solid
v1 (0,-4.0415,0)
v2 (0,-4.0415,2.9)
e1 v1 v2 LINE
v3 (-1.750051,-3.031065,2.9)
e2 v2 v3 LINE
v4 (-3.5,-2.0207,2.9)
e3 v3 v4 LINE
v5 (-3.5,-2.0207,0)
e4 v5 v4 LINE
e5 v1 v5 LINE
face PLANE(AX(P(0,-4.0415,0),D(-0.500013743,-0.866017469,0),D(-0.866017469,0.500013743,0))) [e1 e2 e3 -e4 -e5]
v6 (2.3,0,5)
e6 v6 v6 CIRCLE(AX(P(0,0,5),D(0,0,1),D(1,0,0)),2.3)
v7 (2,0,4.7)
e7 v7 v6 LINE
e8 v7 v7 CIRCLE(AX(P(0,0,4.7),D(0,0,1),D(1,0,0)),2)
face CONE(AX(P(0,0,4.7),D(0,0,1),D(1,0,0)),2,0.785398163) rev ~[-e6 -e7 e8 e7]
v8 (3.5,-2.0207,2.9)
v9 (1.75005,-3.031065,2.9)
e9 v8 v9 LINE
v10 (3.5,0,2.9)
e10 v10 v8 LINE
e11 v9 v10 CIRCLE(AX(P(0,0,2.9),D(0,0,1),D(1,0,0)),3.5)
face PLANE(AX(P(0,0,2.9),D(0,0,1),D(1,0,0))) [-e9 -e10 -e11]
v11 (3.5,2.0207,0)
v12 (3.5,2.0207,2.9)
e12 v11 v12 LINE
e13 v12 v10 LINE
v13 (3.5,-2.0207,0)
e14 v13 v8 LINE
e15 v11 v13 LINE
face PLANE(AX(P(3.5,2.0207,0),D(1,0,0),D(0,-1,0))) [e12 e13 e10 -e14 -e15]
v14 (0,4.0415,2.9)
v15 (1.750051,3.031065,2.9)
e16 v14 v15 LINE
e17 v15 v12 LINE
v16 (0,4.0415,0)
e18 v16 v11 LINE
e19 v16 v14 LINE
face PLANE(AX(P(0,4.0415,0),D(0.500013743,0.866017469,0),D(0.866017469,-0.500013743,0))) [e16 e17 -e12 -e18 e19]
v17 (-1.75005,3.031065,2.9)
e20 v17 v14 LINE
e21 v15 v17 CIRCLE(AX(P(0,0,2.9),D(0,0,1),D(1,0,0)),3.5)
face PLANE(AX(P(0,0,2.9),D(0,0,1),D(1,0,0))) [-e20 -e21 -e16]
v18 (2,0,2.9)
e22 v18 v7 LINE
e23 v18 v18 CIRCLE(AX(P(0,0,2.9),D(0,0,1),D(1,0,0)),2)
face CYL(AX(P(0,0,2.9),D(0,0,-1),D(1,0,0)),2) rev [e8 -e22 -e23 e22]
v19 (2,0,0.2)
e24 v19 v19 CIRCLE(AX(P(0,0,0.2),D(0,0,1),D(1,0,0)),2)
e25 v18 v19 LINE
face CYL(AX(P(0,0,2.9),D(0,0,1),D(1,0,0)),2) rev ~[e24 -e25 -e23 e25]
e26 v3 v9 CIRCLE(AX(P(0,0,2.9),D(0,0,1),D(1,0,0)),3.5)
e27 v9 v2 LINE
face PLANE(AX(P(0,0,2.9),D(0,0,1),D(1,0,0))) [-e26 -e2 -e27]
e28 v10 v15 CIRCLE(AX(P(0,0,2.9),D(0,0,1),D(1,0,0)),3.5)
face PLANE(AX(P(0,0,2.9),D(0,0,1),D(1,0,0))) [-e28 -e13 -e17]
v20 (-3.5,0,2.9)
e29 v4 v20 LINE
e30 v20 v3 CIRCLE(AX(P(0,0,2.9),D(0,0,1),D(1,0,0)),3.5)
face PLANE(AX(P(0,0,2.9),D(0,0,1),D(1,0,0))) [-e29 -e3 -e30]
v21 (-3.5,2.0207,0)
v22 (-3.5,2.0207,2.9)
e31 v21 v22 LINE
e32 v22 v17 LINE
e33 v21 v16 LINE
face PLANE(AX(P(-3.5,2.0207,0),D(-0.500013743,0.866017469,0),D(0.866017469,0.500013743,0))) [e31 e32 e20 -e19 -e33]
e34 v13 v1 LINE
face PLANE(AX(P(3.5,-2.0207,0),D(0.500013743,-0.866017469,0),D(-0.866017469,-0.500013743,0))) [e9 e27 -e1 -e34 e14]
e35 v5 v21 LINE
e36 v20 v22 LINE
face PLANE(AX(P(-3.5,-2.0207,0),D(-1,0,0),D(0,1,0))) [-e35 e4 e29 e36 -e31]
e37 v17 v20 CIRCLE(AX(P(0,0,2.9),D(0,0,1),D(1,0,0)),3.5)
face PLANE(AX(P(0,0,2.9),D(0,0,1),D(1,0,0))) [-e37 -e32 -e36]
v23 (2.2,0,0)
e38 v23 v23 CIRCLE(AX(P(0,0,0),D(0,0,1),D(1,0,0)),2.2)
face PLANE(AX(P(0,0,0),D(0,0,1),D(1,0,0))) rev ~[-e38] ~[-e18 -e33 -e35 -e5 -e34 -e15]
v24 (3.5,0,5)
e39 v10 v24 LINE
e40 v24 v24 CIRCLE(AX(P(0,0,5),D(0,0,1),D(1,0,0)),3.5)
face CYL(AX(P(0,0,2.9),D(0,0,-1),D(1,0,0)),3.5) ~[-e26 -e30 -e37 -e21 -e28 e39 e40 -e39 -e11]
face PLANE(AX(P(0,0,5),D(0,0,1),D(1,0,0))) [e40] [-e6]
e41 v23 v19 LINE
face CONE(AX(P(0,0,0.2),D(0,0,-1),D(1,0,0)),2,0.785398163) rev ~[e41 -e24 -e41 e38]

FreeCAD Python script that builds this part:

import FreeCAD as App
import Part
import Sketcher
Q = App.Units.Quantity


def edges_at(feature, points):
    """Names of the edges that pass closest to the given points."""
    edges = feature.Shape.Edges
    near = lambda p: min(range(len(edges)), key=lambda i: edges[i].distToShape(Part.Vertex(*p))[0])
    return sorted({f"Edge{near(p) + 1}" for p in points})


def add_polygon(sketch, points):
    """Adds a closed chain of lines whose ends are joined by coincident constraints."""
    first, n = sketch.GeometryCount, len(points)
    for a, b in zip(points, points[1:] + points[:1]):
        sketch.addGeometry(Part.LineSegment(App.Vector(*a, 0), App.Vector(*b, 0)), False)
    for i in range(n):
        sketch.addConstraint(Sketcher.Constraint("Coincident", first + i, 2, first + (i + 1) % n, 1))

doc = App.newDocument("Part")
params = doc.addObject("Spreadsheet::Sheet", "Params")
for row, (alias, value) in enumerate([
    ("pad1_length", "2.9 mm"),
    ("sketch2_diameter", "4 mm"),
    ("pocket1_length", "5 mm"),
    ("sketch3_diameter", "7 mm"),
    ("sketch3_diameter2", "4 mm"),
    ("pad2_length", "2.1 mm"),
    ("chamfer_size", "0.2 mm"),
    ("chamfer2_size", "0.3 mm"),
], start=1):
    params.set(f"A{row}", alias)
    params.set(f"B{row}", "=" + value)
    params.setAlias(f"B{row}", alias)

body = doc.addObject("PartDesign::Body", "Body")

# Sketch on XY plane
sketch1 = body.newObject("Sketcher::SketchObject", "Sketch")
sketch1.AttachmentSupport = (doc.getObject("XY_Plane"), [""])
sketch1.MapMode = "FlatFace"
add_polygon(sketch1, [(3.5, 2), (0, 4), (-3.5, 2), (-3.5, -2), (0, -4), (3.5, -2)])  # lines 0-5
sketch1.addConstraint(Sketcher.Constraint("Vertical", 2))
sketch1.addConstraint(Sketcher.Constraint("Vertical", 5))
sketch1.addConstraint(Sketcher.Constraint("Symmetric", 0, 2, 3, 2, -1, 1))
sketch1.addConstraint(Sketcher.Constraint("Symmetric", 1, 2, 4, 2, -1, 1))
sketch1.addConstraint(Sketcher.Constraint("PointOnObject", 0, 2, -2))
sketch1.addConstraint(Sketcher.Constraint("Parallel", 0, 3))
sketch1.addConstraint(Sketcher.Constraint("Horizontal", 2, 2, 4, 2))
sketch1.addConstraint(Sketcher.Constraint("DistanceX", 2, 2, 4, 2, Q("7 mm")))
sketch1.addConstraint(Sketcher.Constraint("Angle", 0, Q("149.999 deg")))
sketch1.addConstraint(Sketcher.Constraint("DistanceY", 2, 2, 2, 1, Q("4.0414 mm")))
pad1 = body.newObject("PartDesign::Pad", "Pad")
pad1.Profile = sketch1
pad1.setExpression("Length", "Params.pad1_length")

# Sketch on XY plane
sketch2 = body.newObject("Sketcher::SketchObject", "Sketch001")
sketch2.AttachmentSupport = (doc.getObject("XY_Plane"), [""])
sketch2.MapMode = "FlatFace"
sketch2.AttachmentOffset = App.Placement(App.Vector(0, 0, 2.9), App.Rotation())
sketch2.addGeometry(Part.Circle(App.Vector(0, 0, 0), App.Vector(0, 0, 1), 2), False)
sketch2.addConstraint(Sketcher.Constraint("Coincident", 0, 3, -1, 1))
sketch2.addConstraint(Sketcher.Constraint("Diameter", 0, Q("4 mm")))
sketch2.setExpression("Constraints[1]", "Params.sketch2_diameter")
pocket1 = body.newObject("PartDesign::Pocket", "Pocket")
pocket1.Profile = sketch2
pocket1.setExpression("Length", "Params.pocket1_length")

# Sketch on XY plane
sketch3 = body.newObject("Sketcher::SketchObject", "Sketch002")
sketch3.AttachmentSupport = (doc.getObject("XY_Plane"), [""])
sketch3.MapMode = "FlatFace"
sketch3.AttachmentOffset = App.Placement(App.Vector(0, 0, 2.9), App.Rotation())
sketch3.addGeometry(Part.Circle(App.Vector(0, 0, 0), App.Vector(0, 0, 1), 3.5), False)
sketch3.addGeometry(Part.Circle(App.Vector(0, 0, 0), App.Vector(0, 0, 1), 2), False)
sketch3.addConstraint(Sketcher.Constraint("Coincident", 0, 3, -1, 1))
sketch3.addConstraint(Sketcher.Constraint("Coincident", 1, 3, -1, 1))
sketch3.addConstraint(Sketcher.Constraint("Diameter", 0, Q("7 mm")))
sketch3.addConstraint(Sketcher.Constraint("Diameter", 1, Q("4 mm")))
sketch3.setExpression("Constraints[2]", "Params.sketch3_diameter")
sketch3.setExpression("Constraints[3]", "Params.sketch3_diameter2")
pad2 = body.newObject("PartDesign::Pad", "Pad001")
pad2.Profile = sketch3
pad2.setExpression("Length", "Params.pad2_length")
doc.recompute()

chamfer = body.newObject("PartDesign::Chamfer", "Chamfer")
chamfer.Base = (pad2, edges_at(pad2, [(-2, 0, 0)]))
chamfer.setExpression("Size", "Params.chamfer_size")
doc.recompute()

chamfer2 = body.newObject("PartDesign::Chamfer", "Chamfer001")
chamfer2.Base = (chamfer, edges_at(chamfer, [(-2, 0, 5)]))
chamfer2.setExpression("Size", "Params.chamfer2_size")

doc.recompute()
